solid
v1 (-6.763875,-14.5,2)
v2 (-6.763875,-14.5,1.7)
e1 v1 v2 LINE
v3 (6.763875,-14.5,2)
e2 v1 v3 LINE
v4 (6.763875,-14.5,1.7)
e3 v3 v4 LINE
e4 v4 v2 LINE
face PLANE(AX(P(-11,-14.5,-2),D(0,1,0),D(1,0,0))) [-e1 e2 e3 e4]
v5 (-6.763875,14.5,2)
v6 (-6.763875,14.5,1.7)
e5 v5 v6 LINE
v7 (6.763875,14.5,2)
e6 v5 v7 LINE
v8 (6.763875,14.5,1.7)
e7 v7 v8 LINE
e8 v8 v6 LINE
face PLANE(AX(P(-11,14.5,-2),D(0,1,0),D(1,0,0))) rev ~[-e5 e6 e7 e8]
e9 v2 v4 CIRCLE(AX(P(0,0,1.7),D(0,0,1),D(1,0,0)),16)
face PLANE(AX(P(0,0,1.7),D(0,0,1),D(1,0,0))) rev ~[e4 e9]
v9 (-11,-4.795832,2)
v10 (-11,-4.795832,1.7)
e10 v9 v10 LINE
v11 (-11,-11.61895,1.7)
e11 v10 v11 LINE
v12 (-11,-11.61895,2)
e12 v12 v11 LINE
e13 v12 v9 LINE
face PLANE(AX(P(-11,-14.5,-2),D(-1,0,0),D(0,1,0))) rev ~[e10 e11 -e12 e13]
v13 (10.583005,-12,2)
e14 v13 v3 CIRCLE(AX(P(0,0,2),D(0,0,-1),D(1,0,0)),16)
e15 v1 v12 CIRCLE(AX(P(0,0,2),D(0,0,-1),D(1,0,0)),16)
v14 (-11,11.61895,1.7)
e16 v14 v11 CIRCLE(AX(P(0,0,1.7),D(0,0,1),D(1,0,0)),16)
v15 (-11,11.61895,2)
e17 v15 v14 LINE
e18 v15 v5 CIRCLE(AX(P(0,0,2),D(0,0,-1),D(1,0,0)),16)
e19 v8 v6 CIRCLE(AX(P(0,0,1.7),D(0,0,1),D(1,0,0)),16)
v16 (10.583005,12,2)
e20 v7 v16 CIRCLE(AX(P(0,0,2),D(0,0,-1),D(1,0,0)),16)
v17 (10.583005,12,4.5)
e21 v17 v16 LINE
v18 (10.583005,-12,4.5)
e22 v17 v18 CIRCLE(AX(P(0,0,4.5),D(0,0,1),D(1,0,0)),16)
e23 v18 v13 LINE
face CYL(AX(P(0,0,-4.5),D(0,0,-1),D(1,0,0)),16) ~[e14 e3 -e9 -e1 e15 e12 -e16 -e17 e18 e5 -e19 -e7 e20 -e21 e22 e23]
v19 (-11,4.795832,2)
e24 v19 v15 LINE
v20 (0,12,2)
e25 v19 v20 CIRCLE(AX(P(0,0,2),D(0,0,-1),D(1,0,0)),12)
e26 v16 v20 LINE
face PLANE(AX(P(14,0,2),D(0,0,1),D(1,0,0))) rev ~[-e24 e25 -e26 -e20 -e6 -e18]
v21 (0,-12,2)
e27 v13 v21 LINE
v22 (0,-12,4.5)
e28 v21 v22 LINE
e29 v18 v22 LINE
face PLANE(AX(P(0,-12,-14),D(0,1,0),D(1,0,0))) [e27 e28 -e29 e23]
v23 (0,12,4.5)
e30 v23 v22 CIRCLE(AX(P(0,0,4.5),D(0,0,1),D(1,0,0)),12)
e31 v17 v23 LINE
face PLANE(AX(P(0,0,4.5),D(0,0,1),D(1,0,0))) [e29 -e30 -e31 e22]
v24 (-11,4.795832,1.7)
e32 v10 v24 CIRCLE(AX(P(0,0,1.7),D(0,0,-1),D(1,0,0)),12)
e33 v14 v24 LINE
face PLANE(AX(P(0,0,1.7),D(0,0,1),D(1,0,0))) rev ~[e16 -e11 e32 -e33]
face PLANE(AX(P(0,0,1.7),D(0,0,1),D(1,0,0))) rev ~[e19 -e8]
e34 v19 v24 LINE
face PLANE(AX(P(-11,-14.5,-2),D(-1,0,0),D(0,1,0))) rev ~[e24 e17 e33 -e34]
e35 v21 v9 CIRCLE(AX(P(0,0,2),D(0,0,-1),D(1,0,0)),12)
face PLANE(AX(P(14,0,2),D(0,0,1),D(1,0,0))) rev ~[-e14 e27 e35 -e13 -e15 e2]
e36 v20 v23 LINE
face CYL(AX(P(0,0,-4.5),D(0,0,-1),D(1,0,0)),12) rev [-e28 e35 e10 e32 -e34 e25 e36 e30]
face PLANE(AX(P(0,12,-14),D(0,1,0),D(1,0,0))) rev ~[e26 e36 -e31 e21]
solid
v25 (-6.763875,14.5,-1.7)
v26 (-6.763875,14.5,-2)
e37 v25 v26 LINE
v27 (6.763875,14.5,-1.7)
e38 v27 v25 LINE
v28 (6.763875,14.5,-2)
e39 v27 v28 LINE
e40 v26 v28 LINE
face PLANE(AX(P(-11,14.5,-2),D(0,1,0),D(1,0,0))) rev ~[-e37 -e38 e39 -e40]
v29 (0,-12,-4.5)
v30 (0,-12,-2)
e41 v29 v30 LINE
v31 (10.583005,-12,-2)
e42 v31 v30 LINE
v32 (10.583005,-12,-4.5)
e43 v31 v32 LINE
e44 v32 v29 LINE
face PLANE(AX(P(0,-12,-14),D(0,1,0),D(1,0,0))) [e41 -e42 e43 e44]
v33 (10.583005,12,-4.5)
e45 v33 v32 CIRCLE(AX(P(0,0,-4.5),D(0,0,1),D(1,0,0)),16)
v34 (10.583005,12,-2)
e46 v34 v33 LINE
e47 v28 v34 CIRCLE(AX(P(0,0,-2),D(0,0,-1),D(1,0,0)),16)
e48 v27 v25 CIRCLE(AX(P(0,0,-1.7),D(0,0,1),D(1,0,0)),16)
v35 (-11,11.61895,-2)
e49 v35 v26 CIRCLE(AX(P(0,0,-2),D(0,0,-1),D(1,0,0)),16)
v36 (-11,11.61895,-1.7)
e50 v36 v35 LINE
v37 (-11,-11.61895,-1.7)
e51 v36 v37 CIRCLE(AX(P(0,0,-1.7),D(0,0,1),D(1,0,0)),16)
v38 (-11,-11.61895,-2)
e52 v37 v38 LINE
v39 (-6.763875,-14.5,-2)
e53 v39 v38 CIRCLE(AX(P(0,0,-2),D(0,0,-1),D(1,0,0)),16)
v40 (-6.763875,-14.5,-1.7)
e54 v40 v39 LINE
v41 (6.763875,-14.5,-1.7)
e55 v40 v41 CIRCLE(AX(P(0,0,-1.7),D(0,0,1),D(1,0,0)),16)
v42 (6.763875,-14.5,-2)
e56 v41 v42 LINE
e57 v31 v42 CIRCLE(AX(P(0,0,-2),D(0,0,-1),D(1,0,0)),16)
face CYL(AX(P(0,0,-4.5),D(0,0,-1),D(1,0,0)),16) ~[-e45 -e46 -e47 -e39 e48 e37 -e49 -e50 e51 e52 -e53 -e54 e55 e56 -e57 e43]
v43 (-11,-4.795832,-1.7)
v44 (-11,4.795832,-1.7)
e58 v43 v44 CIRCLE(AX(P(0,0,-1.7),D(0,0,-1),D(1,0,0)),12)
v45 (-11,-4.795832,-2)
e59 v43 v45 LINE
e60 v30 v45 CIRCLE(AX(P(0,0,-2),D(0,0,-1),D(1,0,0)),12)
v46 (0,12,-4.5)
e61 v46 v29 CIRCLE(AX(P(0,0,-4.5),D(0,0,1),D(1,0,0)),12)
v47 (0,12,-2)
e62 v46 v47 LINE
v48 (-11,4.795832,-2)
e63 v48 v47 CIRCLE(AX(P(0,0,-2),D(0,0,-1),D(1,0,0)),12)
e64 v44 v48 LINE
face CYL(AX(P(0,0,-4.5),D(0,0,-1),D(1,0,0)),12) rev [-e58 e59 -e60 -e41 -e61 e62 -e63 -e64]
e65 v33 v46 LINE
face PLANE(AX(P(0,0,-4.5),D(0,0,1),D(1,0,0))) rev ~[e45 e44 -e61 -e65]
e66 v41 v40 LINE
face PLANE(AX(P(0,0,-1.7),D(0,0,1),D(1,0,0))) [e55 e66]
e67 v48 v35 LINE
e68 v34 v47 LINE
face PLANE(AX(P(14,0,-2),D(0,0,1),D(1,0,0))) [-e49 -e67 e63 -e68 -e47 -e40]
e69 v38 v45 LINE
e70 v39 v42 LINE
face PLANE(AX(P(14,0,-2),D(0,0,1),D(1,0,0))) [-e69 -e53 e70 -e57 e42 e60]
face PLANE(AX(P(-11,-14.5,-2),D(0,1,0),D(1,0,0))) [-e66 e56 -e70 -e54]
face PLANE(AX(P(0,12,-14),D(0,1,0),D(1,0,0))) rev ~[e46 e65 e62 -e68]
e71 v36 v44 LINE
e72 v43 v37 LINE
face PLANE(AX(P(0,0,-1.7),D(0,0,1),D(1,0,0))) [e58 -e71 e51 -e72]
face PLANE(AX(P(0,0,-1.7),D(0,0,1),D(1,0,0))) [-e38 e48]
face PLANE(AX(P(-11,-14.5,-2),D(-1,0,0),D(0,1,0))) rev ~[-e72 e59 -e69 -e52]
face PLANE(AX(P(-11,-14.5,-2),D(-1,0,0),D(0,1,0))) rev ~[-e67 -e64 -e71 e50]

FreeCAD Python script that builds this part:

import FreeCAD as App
import Part
import Sketcher

doc = App.newDocument("Part")
body = doc.addObject("PartDesign::Body", "Body")

# Sketch on XY plane
sketch1 = body.newObject("Sketcher::SketchObject", "Sketch")
sketch1.AttachmentSupport = (doc.getObject("XY_Plane"), [""])
sketch1.MapMode = "FlatFace"
sketch1.AttachmentOffset = App.Placement(App.Vector(0, 0, -2), App.Rotation())
sketch1.addGeometry([
    Part.LineSegment(App.Vector(-11, 14, 0), App.Vector(-11, -14, 0)),
    Part.LineSegment(App.Vector(-11, -14, 0), App.Vector(39, -14, 0)),
    Part.LineSegment(App.Vector(39, -14, 0), App.Vector(39, 14, 0)),
    Part.LineSegment(App.Vector(39, 14, 0), App.Vector(-11, 14, 0)),
], False)
sketch1.addConstraint([
    Sketcher.Constraint("Coincident", 0, 2, 1, 1),
    Sketcher.Constraint("Coincident", 1, 2, 2, 1),
    Sketcher.Constraint("Coincident", 2, 2, 3, 1),
    Sketcher.Constraint("Coincident", 3, 2, 0, 1),
    Sketcher.Constraint("Vertical", 0),
    Sketcher.Constraint("Horizontal", 1),
    Sketcher.Constraint("Vertical", 2),
    Sketcher.Constraint("Horizontal", 3),
    Sketcher.Constraint("DistanceX", 1, 1, 1, 2, 50.0),
    Sketcher.Constraint("DistanceY", 0, 2, 0, 1, 29.0),
    Sketcher.Constraint("DistanceX", 0, 2, -1, 1, 11.0),
    Sketcher.Constraint("DistanceY", 0, 2, -1, 1, 14.5),
])
pad1 = body.newObject("PartDesign::Pad", "Pad")
pad1.Profile = sketch1
pad1.Length = 4
body2 = doc.addObject("PartDesign::Body", "Body001")

# Sketch on XY plane
sketch2 = body2.newObject("Sketcher::SketchObject", "Sketch001")
sketch2.AttachmentSupport = (doc.getObject("XY_Plane001"), [""])
sketch2.MapMode = "FlatFace"
sketch2.AttachmentOffset = App.Placement(App.Vector(0, 0, -14), App.Rotation())
sketch2.addGeometry([
    Part.LineSegment(App.Vector(0, 12, 0), App.Vector(0, -12, 0)),
    Part.LineSegment(App.Vector(0, -12, 0), App.Vector(58, -12, 0)),
    Part.LineSegment(App.Vector(58, -12, 0), App.Vector(58, 12, 0)),
    Part.LineSegment(App.Vector(58, 12, 0), App.Vector(0, 12, 0)),
], False)
sketch2.addConstraint([
    Sketcher.Constraint("Coincident", 0, 2, 1, 1),
    Sketcher.Constraint("Coincident", 1, 2, 2, 1),
    Sketcher.Constraint("Coincident", 2, 2, 3, 1),
    Sketcher.Constraint("Coincident", 3, 2, 0, 1),
    Sketcher.Constraint("Vertical", 0),
    Sketcher.Constraint("Horizontal", 1),
    Sketcher.Constraint("Vertical", 2),
    Sketcher.Constraint("Horizontal", 3),
    Sketcher.Constraint("Symmetric", 0, 2, 3, 2, -1, 1),
    Sketcher.Constraint("DistanceX", 1, 1, 1, 2, 58.0),
    Sketcher.Constraint("DistanceY", 0, 2, 0, 1, 24.0),
])
pad2 = body2.newObject("PartDesign::Pad", "Pad001")
pad2.Profile = sketch2
pad2.Length = 30
body3 = doc.addObject("PartDesign::Body", "Body002")

# Sketch on XY plane
sketch3 = body3.newObject("Sketcher::SketchObject", "Sketch002")
sketch3.AttachmentSupport = (doc.getObject("XY_Plane002"), [""])
sketch3.MapMode = "FlatFace"
sketch3.AttachmentOffset = App.Placement(App.Vector(0, 0, -4.5), App.Rotation())
sketch3.addGeometry(Part.Circle(App.Vector(0, 0, 0), App.Vector(0, 0, 1), 12), False)
sketch3.addConstraint([
    Sketcher.Constraint("Coincident", 0, 3, -1, 1),
    Sketcher.Constraint("Diameter", 0, 24.0),
])
pad3 = body3.newObject("PartDesign::Pad", "Pad002")
pad3.Profile = sketch3
pad3.Length = 9
body4 = doc.addObject("PartDesign::Body", "Body003")

# Sketch on XY plane
sketch4 = body4.newObject("Sketcher::SketchObject", "Sketch003")
sketch4.AttachmentSupport = (doc.getObject("XY_Plane003"), [""])
sketch4.MapMode = "FlatFace"
sketch4.AttachmentOffset = App.Placement(App.Vector(0, 0, -1.7), App.Rotation())
sketch4.addGeometry(Part.Circle(App.Vector(0, 0, 0), App.Vector(0, 0, 1), 16), False)
sketch4.addConstraint([
    Sketcher.Constraint("Coincident", 0, 3, -1, 1),
    Sketcher.Constraint("Diameter", 0, 32.0),
])
pad4 = body4.newObject("PartDesign::Pad", "Pad003")
pad4.Profile = sketch4
pad4.Length = 3.4
doc.recompute()

boolean = body4.newObject("PartDesign::Boolean", "Boolean")
boolean.Type = "Fuse"
boolean.addObjects([body])
doc.recompute()

boolean2 = body4.newObject("PartDesign::Boolean", "Boolean001")
boolean2.Type = "Fuse"
boolean2.addObjects([body2])
doc.recompute()

boolean3 = body4.newObject("PartDesign::Boolean", "Boolean002")
boolean3.Type = "Fuse"
boolean3.addObjects([body3])
body5 = doc.addObject("PartDesign::Body", "Body004")
body5.AllowCompound = True

# Sketch on XY plane
sketch5 = body5.newObject("Sketcher::SketchObject", "Sketch004")
sketch5.AttachmentSupport = (doc.getObject("XY_Plane004"), [""])
sketch5.MapMode = "FlatFace"
sketch5.AttachmentOffset = App.Placement(App.Vector(0, 0, -4.5), App.Rotation())
sketch5.addGeometry(Part.Circle(App.Vector(0, 0, 0), App.Vector(0, 0, 1), 16), False)
sketch5.addConstraint([
    Sketcher.Constraint("Coincident", 0, 3, -1, 1),
    Sketcher.Constraint("Diameter", 0, 32.0),
])
pad5 = body5.newObject("PartDesign::Pad", "Pad004")
pad5.Profile = sketch5
pad5.Length = 9
doc.recompute()

boolean4 = body5.newObject("PartDesign::Boolean", "Boolean003")
boolean4.Type = "Cut"
boolean4.addObjects([body4])

doc.recompute()
